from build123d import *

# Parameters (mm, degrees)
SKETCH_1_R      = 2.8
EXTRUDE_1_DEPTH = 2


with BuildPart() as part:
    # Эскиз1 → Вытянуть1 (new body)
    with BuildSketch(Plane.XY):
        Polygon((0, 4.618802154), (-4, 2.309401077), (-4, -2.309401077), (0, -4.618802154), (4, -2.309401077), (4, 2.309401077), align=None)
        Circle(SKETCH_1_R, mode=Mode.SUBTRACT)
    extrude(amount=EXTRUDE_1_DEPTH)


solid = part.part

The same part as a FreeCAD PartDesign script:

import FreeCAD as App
import Part
import Sketcher
Q = App.Units.Quantity

doc = App.newDocument("Part")
body = doc.addObject("PartDesign::Body", "Body")

sketch1 = body.newObject("Sketcher::SketchObject", "Sketch")
sketch1.AttachmentSupport = (doc.getObject("XY_Plane"), [""])
sketch1.MapMode = "FlatFace"
sketch1.addGeometry(Part.LineSegment(App.Vector(0, 4.618802, 0), App.Vector(-4, 2.309401, 0)), False)
sketch1.addGeometry(Part.LineSegment(App.Vector(-4, 2.309401, 0), App.Vector(-4, -2.309401, 0)), False)
sketch1.addGeometry(Part.LineSegment(App.Vector(-4, -2.309401, 0), App.Vector(0, -4.618802, 0)), False)
sketch1.addGeometry(Part.LineSegment(App.Vector(0, -4.618802, 0), App.Vector(4, -2.309401, 0)), False)
sketch1.addGeometry(Part.LineSegment(App.Vector(4, -2.309401, 0), App.Vector(4, 2.309401, 0)), False)
sketch1.addGeometry(Part.LineSegment(App.Vector(4, 2.309401, 0), App.Vector(0, 4.618802, 0)), False)
sketch1.addGeometry(Part.Circle(App.Vector(0, 0, 0), App.Vector(0, 0, 1), 2.8), False)
sketch1.addConstraint(Sketcher.Constraint("Coincident", 0, 2, 1, 1))
sketch1.addConstraint(Sketcher.Constraint("Coincident", 1, 2, 2, 1))
sketch1.addConstraint(Sketcher.Constraint("Coincident", 2, 2, 3, 1))
sketch1.addConstraint(Sketcher.Constraint("Coincident", 3, 2, 4, 1))
sketch1.addConstraint(Sketcher.Constraint("Coincident", 4, 2, 5, 1))
sketch1.addConstraint(Sketcher.Constraint("Coincident", 5, 2, 0, 1))
sketch1.addConstraint(Sketcher.Constraint("Vertical", 1))
sketch1.addConstraint(Sketcher.Constraint("Vertical", 4))
sketch1.addConstraint(Sketcher.Constraint("Coincident", 6, 3, -1, 1))
sketch1.addConstraint(Sketcher.Constraint("Symmetric", 0, 2, 3, 2, -1, 1))
sketch1.addConstraint(Sketcher.Constraint("Symmetric", 2, 2, 5, 2, -1, 1))
sketch1.addConstraint(Sketcher.Constraint("PointOnObject", 2, 2, -2))
sketch1.addConstraint(Sketcher.Constraint("Parallel", 2, 5))
sketch1.addConstraint(Sketcher.Constraint("Horizontal", 1, 2, 3, 2))
sketch1.addConstraint(Sketcher.Constraint("Diameter", 6, Q("5.6 mm")))
sketch1.addConstraint(Sketcher.Constraint("Angle", 0, Q("-150 deg")))
sketch1.addConstraint(Sketcher.Constraint("DistanceX", 0, 2, -1, 1, Q("4 mm")))
sketch1.addConstraint(Sketcher.Constraint("DistanceY", -1, 1, 0, 2, Q("2.309401 mm")))
pad1 = body.newObject("PartDesign::Pad", "Pad")
pad1.Profile = sketch1
pad1.Length = 2

doc.recompute()
